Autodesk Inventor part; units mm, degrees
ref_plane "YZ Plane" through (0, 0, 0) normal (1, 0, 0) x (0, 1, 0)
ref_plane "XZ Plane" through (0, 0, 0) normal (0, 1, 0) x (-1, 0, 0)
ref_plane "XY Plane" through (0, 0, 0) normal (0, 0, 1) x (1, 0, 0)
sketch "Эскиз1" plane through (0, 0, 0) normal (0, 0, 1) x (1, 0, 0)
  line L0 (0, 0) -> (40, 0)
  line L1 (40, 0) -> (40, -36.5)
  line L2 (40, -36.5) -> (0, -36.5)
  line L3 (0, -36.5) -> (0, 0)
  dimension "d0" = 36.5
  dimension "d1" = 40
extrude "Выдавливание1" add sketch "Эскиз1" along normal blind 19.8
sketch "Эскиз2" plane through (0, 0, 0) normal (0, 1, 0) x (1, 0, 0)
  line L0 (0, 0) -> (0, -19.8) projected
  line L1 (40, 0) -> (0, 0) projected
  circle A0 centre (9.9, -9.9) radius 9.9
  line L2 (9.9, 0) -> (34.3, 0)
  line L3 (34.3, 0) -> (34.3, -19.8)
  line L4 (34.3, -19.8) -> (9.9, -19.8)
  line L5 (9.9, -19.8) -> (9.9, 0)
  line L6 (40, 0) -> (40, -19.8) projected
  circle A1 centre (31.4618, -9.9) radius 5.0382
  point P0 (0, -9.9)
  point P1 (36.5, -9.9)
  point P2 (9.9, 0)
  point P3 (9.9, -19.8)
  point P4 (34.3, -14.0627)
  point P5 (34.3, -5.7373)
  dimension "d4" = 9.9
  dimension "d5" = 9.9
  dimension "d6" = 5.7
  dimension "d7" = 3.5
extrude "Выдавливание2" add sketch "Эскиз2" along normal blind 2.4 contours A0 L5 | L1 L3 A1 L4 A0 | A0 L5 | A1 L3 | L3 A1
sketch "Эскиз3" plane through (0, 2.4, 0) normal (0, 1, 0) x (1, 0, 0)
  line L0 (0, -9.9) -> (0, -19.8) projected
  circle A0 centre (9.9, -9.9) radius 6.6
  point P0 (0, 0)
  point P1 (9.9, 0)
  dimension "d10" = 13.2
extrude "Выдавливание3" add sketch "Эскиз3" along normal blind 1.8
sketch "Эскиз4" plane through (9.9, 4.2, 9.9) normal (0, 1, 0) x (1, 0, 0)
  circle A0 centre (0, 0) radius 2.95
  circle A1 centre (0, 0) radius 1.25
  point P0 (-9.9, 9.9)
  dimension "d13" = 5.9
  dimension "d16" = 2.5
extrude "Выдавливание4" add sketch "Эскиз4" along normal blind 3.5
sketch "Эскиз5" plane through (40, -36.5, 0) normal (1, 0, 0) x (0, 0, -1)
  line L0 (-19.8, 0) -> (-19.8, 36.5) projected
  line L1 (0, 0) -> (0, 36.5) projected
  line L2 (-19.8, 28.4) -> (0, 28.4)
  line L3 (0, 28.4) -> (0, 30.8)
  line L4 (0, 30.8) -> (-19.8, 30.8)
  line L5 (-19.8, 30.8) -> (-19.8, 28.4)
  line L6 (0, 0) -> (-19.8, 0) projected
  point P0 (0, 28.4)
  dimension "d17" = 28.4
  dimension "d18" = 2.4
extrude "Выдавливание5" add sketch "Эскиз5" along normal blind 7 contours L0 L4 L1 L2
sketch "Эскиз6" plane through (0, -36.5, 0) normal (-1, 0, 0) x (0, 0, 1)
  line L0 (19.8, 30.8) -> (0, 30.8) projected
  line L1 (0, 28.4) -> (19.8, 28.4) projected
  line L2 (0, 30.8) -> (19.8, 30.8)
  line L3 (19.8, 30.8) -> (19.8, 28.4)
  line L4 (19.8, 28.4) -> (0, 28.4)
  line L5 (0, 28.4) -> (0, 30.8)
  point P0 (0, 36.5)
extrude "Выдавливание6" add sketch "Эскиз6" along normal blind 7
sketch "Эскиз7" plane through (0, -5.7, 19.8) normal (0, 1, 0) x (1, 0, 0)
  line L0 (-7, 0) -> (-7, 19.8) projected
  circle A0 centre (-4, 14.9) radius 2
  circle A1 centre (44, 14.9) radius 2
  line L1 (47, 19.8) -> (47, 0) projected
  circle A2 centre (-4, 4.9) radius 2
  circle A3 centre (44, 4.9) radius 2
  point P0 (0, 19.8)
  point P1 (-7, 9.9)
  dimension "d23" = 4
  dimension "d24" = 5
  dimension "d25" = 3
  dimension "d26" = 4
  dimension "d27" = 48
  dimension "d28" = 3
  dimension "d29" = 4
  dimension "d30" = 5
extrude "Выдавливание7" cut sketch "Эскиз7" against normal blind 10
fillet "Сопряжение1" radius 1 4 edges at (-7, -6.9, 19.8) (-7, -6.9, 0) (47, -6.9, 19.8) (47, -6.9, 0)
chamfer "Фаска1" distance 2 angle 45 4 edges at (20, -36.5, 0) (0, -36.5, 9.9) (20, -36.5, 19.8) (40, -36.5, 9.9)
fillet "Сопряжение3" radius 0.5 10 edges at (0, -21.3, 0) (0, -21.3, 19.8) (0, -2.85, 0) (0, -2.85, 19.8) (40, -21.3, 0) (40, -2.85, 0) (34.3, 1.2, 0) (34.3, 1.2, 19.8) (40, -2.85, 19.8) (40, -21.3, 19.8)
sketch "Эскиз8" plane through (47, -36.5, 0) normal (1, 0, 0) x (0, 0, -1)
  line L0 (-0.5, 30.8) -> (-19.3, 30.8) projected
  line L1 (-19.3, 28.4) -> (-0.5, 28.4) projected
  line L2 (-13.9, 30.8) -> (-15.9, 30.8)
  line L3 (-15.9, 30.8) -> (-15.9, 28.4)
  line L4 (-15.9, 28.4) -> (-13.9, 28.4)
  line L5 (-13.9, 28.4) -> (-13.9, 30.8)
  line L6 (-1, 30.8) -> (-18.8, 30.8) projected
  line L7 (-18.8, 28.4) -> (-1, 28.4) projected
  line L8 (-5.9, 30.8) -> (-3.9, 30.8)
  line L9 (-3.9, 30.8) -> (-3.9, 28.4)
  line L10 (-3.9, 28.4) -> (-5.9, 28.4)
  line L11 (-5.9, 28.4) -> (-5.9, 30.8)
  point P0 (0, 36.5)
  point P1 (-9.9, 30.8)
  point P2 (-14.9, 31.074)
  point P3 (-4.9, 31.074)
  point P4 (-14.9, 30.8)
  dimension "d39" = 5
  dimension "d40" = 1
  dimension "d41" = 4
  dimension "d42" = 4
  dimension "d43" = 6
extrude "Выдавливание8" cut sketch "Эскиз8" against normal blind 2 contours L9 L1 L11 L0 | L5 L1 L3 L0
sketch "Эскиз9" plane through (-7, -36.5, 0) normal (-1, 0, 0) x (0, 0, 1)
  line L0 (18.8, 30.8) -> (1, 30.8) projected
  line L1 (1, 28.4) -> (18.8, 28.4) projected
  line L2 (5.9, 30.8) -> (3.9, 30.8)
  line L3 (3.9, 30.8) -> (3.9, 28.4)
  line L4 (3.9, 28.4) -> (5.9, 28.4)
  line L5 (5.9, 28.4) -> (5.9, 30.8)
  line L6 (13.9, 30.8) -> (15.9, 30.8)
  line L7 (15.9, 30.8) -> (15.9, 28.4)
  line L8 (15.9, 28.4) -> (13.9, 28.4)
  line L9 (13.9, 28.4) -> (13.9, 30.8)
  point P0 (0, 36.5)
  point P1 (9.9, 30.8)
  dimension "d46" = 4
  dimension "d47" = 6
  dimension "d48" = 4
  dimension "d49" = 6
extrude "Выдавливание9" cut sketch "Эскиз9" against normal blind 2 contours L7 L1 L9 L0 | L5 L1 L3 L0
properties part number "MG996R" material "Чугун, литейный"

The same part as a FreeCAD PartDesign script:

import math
import FreeCAD as App
import Part
import Sketcher


def edges_at(feature, points):
    """Names of the edges that pass closest to the given points."""
    edges = feature.Shape.Edges
    near = lambda p: min(range(len(edges)), key=lambda i: edges[i].distToShape(Part.Vertex(*p))[0])
    return sorted({f"Edge{near(p) + 1}" for p in points})

doc = App.newDocument("Part")
body = doc.addObject("PartDesign::Body", "Body")

sketch1 = body.newObject("Sketcher::SketchObject", "Sketch")
sketch1.AttachmentSupport = (doc.getObject("XY_Plane"), [""])
sketch1.MapMode = "FlatFace"
sketch1.addGeometry([
    Part.LineSegment(App.Vector(40, 0, 0), App.Vector(0, 0, 0)),
    Part.LineSegment(App.Vector(0, 0, 0), App.Vector(0, -36, 0)),
    Part.LineSegment(App.Vector(0, -36, 0), App.Vector(40, -36, 0)),
    Part.LineSegment(App.Vector(40, -36, 0), App.Vector(40, 0, 0)),
], False)
sketch1.addConstraint([
    Sketcher.Constraint("Coincident", 0, 2, 1, 1),
    Sketcher.Constraint("Coincident", 1, 2, 2, 1),
    Sketcher.Constraint("Coincident", 2, 2, 3, 1),
    Sketcher.Constraint("Coincident", 3, 2, 0, 1),
    Sketcher.Constraint("Horizontal", 0),
    Sketcher.Constraint("Vertical", 1),
    Sketcher.Constraint("Horizontal", 2),
    Sketcher.Constraint("Vertical", 3),
    Sketcher.Constraint("Coincident", 0, 2, -1, 1),
    Sketcher.Constraint("DistanceX", 0, 2, 0, 1, 40.0),
    Sketcher.Constraint("DistanceY", 1, 2, 1, 1, 36.5),
])
pad1 = body.newObject("PartDesign::Pad", "Pad")
pad1.Profile = sketch1
pad1.Length = 19.8

sketch2 = body.newObject("Sketcher::SketchObject", "Sketch001")
sketch2.AttachmentSupport = (doc.getObject("XZ_Plane"), [""])
sketch2.MapMode = "FlatFace"
sketch2.addGeometry([
    Part.ArcOfCircle(Part.Circle(App.Vector(10, 10, 0), App.Vector(0, 0, 1), 10), math.radians(90), math.radians(270)),
    Part.LineSegment(App.Vector(10, 20, 0), App.Vector(34, 20, 0)),
    Part.LineSegment(App.Vector(34, 20, 0), App.Vector(34, 14, 0)),
    Part.ArcOfCircle(Part.Circle(App.Vector(31, 10, 0), App.Vector(0, 0, 1), 5), math.radians(-56), math.radians(56)),
    Part.LineSegment(App.Vector(34, 6, 0), App.Vector(34, 0, 0)),
    Part.LineSegment(App.Vector(34, 0, 0), App.Vector(10, 0, 0)),
], False)
sketch2.addConstraint([
    Sketcher.Constraint("Tangent", 0, 1, 1, 1),
    Sketcher.Constraint("Coincident", 1, 2, 2, 1),
    Sketcher.Constraint("Coincident", 2, 2, 3, 2),
    Sketcher.Constraint("Coincident", 3, 1, 4, 1),
    Sketcher.Constraint("Coincident", 4, 2, 5, 1),
    Sketcher.Constraint("Tangent", 5, 2, 0, 2),
    Sketcher.Constraint("Horizontal", 1),
    Sketcher.Constraint("Vertical", 2),
    Sketcher.Constraint("Vertical", 4),
    Sketcher.Constraint("Horizontal", 5),
    Sketcher.Constraint("PointOnObject", 4, 2, -1),
    Sketcher.Constraint("Horizontal", 0, 3, 3, 3),
    Sketcher.Constraint("Vertical", 2, 2, 3, 1),
    Sketcher.Constraint("Radius", 0, 9.9),
    Sketcher.Constraint("DistanceX", -1, 1, 0, 3, 9.9),
    Sketcher.Constraint("DistanceX", 1, 1, 1, 2, 24.4),
    Sketcher.Constraint("Radius", 3, 5.0382),
    Sketcher.Constraint("DistanceY", 2, 2, 2, 1, 5.7373),
])
pad2 = body.newObject("PartDesign::Pad", "Pad001")
pad2.Profile = sketch2
pad2.Length = 2.4
pad2.Reversed = True

sketch3 = body.newObject("Sketcher::SketchObject", "Sketch002")
sketch3.AttachmentSupport = (doc.getObject("XZ_Plane"), [""])
sketch3.MapMode = "FlatFace"
sketch3.AttachmentOffset = App.Placement(App.Vector(0, 0, -2.4), App.Rotation())
sketch3.addGeometry(Part.Circle(App.Vector(10, 10, 0), App.Vector(0, 0, 1), 7), False)
sketch3.addConstraint([
    Sketcher.Constraint("Diameter", 0, 13.2),
    Sketcher.Constraint("DistanceX", -1, 1, 0, 3, 9.9),
    Sketcher.Constraint("DistanceY", -1, 1, 0, 3, 9.9),
])
pad3 = body.newObject("PartDesign::Pad", "Pad002")
pad3.Profile = sketch3
pad3.Length = 1.8
pad3.Reversed = True

sketch4 = body.newObject("Sketcher::SketchObject", "Sketch003")
sketch4.AttachmentSupport = (doc.getObject("XZ_Plane"), [""])
sketch4.MapMode = "FlatFace"
sketch4.AttachmentOffset = App.Placement(App.Vector(0, 0, -4.2), App.Rotation())
sketch4.addGeometry([
    Part.Circle(App.Vector(9.9, 9.9, 0), App.Vector(0, 0, 1), 3),
    Part.Circle(App.Vector(9.9, 9.9, 0), App.Vector(0, 0, 1), 1.2),
], False)
sketch4.addConstraint([
    Sketcher.Constraint("Coincident", 1, 3, 0, 3),
    Sketcher.Constraint("Diameter", 0, 5.9),
    Sketcher.Constraint("Diameter", 1, 2.5),
    Sketcher.Constraint("DistanceX", -1, 1, 0, 3, 9.9),
    Sketcher.Constraint("DistanceY", -1, 1, 0, 3, 9.9),
])
pad4 = body.newObject("PartDesign::Pad", "Pad003")
pad4.Profile = sketch4
pad4.Length = 3.5
pad4.Reversed = True

sketch5 = body.newObject("Sketcher::SketchObject", "Sketch004")
sketch5.AttachmentSupport = (doc.getObject("YZ_Plane"), [""])
sketch5.MapMode = "FlatFace"
sketch5.AttachmentOffset = App.Placement(App.Vector(0, 0, 40), App.Rotation())
sketch5.addGeometry([
    Part.LineSegment(App.Vector(-5.7, 19.8, 0), App.Vector(-8.1, 19.8, 0)),
    Part.LineSegment(App.Vector(-8.1, 19.8, 0), App.Vector(-8.1, 0, 0)),
    Part.LineSegment(App.Vector(-8.1, 0, 0), App.Vector(-5.7, 0, 0)),
    Part.LineSegment(App.Vector(-5.7, 0, 0), App.Vector(-5.7, 19.8, 0)),
], False)
sketch5.addConstraint([
    Sketcher.Constraint("Coincident", 0, 2, 1, 1),
    Sketcher.Constraint("Coincident", 1, 2, 2, 1),
    Sketcher.Constraint("Coincident", 2, 2, 3, 1),
    Sketcher.Constraint("Coincident", 3, 2, 0, 1),
    Sketcher.Constraint("Horizontal", 0),
    Sketcher.Constraint("Vertical", 1),
    Sketcher.Constraint("Horizontal", 2),
    Sketcher.Constraint("Vertical", 3),
    Sketcher.Constraint("PointOnObject", 1, 2, -1),
    Sketcher.Constraint("DistanceX", 0, 2, 0, 1, 2.4),
    Sketcher.Constraint("DistanceY", 1, 2, 1, 1, 19.8),
    Sketcher.Constraint("DistanceX", 0, 2, -1, 1, 8.1),
])
pad5 = body.newObject("PartDesign::Pad", "Pad004")
pad5.Profile = sketch5
pad5.Length = 7

sketch6 = body.newObject("Sketcher::SketchObject", "Sketch005")
sketch6.AttachmentSupport = (doc.getObject("YZ_Plane"), [""])
sketch6.MapMode = "FlatFace"
sketch6.addGeometry([
    Part.LineSegment(App.Vector(-8.1, 19.8, 0), App.Vector(-5.7, 19.8, 0)),
    Part.LineSegment(App.Vector(-5.7, 19.8, 0), App.Vector(-5.7, 0, 0)),
    Part.LineSegment(App.Vector(-5.7, 0, 0), App.Vector(-8.1, 0, 0)),
    Part.LineSegment(App.Vector(-8.1, 0, 0), App.Vector(-8.1, 19.8, 0)),
], False)
sketch6.addConstraint([
    Sketcher.Constraint("Coincident", 0, 2, 1, 1),
    Sketcher.Constraint("Coincident", 1, 2, 2, 1),
    Sketcher.Constraint("Coincident", 2, 2, 3, 1),
    Sketcher.Constraint("Coincident", 3, 2, 0, 1),
    Sketcher.Constraint("Horizontal", 0),
    Sketcher.Constraint("Vertical", 1),
    Sketcher.Constraint("Horizontal", 2),
    Sketcher.Constraint("Vertical", 3),
    Sketcher.Constraint("PointOnObject", 1, 2, -1),
    Sketcher.Constraint("DistanceX", 0, 1, 0, 2, 2.4),
    Sketcher.Constraint("DistanceY", 1, 2, 1, 1, 19.8),
    Sketcher.Constraint("DistanceX", 0, 2, -1, 1, 5.7),
])
pad6 = body.newObject("PartDesign::Pad", "Pad005")
pad6.Profile = sketch6
pad6.Length = 7
pad6.Reversed = True

sketch7 = body.newObject("Sketcher::SketchObject", "Sketch006")
sketch7.AttachmentSupport = (doc.getObject("XZ_Plane"), [""])
sketch7.MapMode = "FlatFace"
sketch7.AttachmentOffset = App.Placement(App.Vector(0, 0, 5.7), App.Rotation())
sketch7.addGeometry([
    Part.Circle(App.Vector(-4, 4.9, 0), App.Vector(0, 0, 1), 2),
    Part.Circle(App.Vector(44, 4.9, 0), App.Vector(0, 0, 1), 2),
    Part.Circle(App.Vector(-4, 14.9, 0), App.Vector(0, 0, 1), 2),
    Part.Circle(App.Vector(44, 14.9, 0), App.Vector(0, 0, 1), 2),
], False)
sketch7.addConstraint([
    Sketcher.Constraint("Equal", 0, 1),
    Sketcher.Constraint("Equal", 1, 2),
    Sketcher.Constraint("Equal", 2, 3),
    Sketcher.Constraint("Horizontal", 0, 3, 1, 3),
    Sketcher.Constraint("Horizontal", 2, 3, 3, 3),
    Sketcher.Constraint("Vertical", 0, 3, 2, 3),
    Sketcher.Constraint("Vertical", 1, 3, 3, 3),
    Sketcher.Constraint("Diameter", 0, 4.0),
    Sketcher.Constraint("DistanceX", 0, 3, -1, 1, 4.0),
    Sketcher.Constraint("DistanceX", 0, 3, 1, 3, 48.0),
    Sketcher.Constraint("DistanceY", 0, 3, 2, 3, 10.0),
    Sketcher.Constraint("DistanceY", -1, 1, 0, 3, 4.9),
])
pocket1 = body.newObject("PartDesign::Pocket", "Pocket")
pocket1.Profile = sketch7
pocket1.Length = 10
pocket1.Reversed = True
doc.recompute()

fillet = body.newObject("PartDesign::Fillet", "Fillet")
fillet.Base = (pocket1, edges_at(pocket1, [
    (-7, -6.9, 19.8),
    (-7, -6.9, 0),
    (47, -6.9, 19.8),
    (47, -6.9, 0),
]))
fillet.Radius = 1
doc.recompute()

chamfer = body.newObject("PartDesign::Chamfer", "Chamfer")
chamfer.Base = (fillet, edges_at(fillet, [
    (20, -36.5, 0),
    (0, -36.5, 9.9),
    (20, -36.5, 19.8),
    (40, -36.5, 9.9),
]))
chamfer.Size = 2
doc.recompute()

fillet2 = body.newObject("PartDesign::Fillet", "Fillet001")
fillet2.Base = (chamfer, edges_at(chamfer, [
    (0, -21.3, 0),
    (0, -21.3, 19.8),
    (0, -2.85, 0),
    (0, -2.85, 19.8),
    (40, -21.3, 0),
    (40, -2.85, 0),
    (34.3, 1.2, 0),
    (34.3, 1.2, 19.8),
    (40, -2.85, 19.8),
    (40, -21.3, 19.8),
]))
fillet2.Radius = 0.5

sketch8 = body.newObject("Sketcher::SketchObject", "Sketch007")
sketch8.AttachmentSupport = (doc.getObject("YZ_Plane"), [""])
sketch8.MapMode = "FlatFace"
sketch8.AttachmentOffset = App.Placement(App.Vector(0, 0, 47), App.Rotation())
sketch8.addGeometry([
    Part.LineSegment(App.Vector(-8.1, 3.9, 0), App.Vector(-5.7, 3.9, 0)),
    Part.LineSegment(App.Vector(-5.7, 3.9, 0), App.Vector(-5.7, 5.9, 0)),
    Part.LineSegment(App.Vector(-5.7, 5.9, 0), App.Vector(-8.1, 5.9, 0)),
    Part.LineSegment(App.Vector(-8.1, 5.9, 0), App.Vector(-8.1, 3.9, 0)),
    Part.LineSegment(App.Vector(-8.1, 13.9, 0), App.Vector(-5.7, 13.9, 0)),
    Part.LineSegment(App.Vector(-5.7, 13.9, 0), App.Vector(-5.7, 15.9, 0)),
    Part.LineSegment(App.Vector(-5.7, 15.9, 0), App.Vector(-8.1, 15.9, 0)),
    Part.LineSegment(App.Vector(-8.1, 15.9, 0), App.Vector(-8.1, 13.9, 0)),
], False)
sketch8.addConstraint([
    Sketcher.Constraint("Coincident", 0, 2, 1, 1),
    Sketcher.Constraint("Coincident", 1, 2, 2, 1),
    Sketcher.Constraint("Coincident", 2, 2, 3, 1),
    Sketcher.Constraint("Coincident", 3, 2, 0, 1),
    Sketcher.Constraint("Coincident", 4, 2, 5, 1),
    Sketcher.Constraint("Coincident", 5, 2, 6, 1),
    Sketcher.Constraint("Coincident", 6, 2, 7, 1),
    Sketcher.Constraint("Coincident", 7, 2, 4, 1),
    Sketcher.Constraint("Horizontal", 0),
    Sketcher.Constraint("Vertical", 1),
    Sketcher.Constraint("Horizontal", 2),
    Sketcher.Constraint("Vertical", 3),
    Sketcher.Constraint("Horizontal", 4),
    Sketcher.Constraint("Vertical", 5),
    Sketcher.Constraint("Horizontal", 6),
    Sketcher.Constraint("Vertical", 7),
    Sketcher.Constraint("Vertical", 1, 2, 4, 2),
    Sketcher.Constraint("Vertical", 3, 2, 6, 2),
    Sketcher.Constraint("Equal", 3, 5),
    Sketcher.Constraint("DistanceY", 1, 1, 1, 2, 2.0),
    Sketcher.Constraint("DistanceX", 0, 1, 0, 2, 2.4),
    Sketcher.Constraint("DistanceY", 1, 2, 4, 2, 8.0),
    Sketcher.Constraint("DistanceX", 0, 2, -1, 1, 5.7),
    Sketcher.Constraint("DistanceY", -1, 1, 0, 2, 3.9),
])
pocket2 = body.newObject("PartDesign::Pocket", "Pocket001")
pocket2.Profile = sketch8
pocket2.Length = 2

sketch9 = body.newObject("Sketcher::SketchObject", "Sketch008")
sketch9.AttachmentSupport = (doc.getObject("YZ_Plane"), [""])
sketch9.MapMode = "FlatFace"
sketch9.AttachmentOffset = App.Placement(App.Vector(0, 0, -7), App.Rotation())
sketch9.addGeometry([
    Part.LineSegment(App.Vector(-8.1, 15.9, 0), App.Vector(-5.7, 15.9, 0)),
    Part.LineSegment(App.Vector(-5.7, 15.9, 0), App.Vector(-5.7, 13.9, 0)),
    Part.LineSegment(App.Vector(-5.7, 13.9, 0), App.Vector(-8.1, 13.9, 0)),
    Part.LineSegment(App.Vector(-8.1, 13.9, 0), App.Vector(-8.1, 15.9, 0)),
    Part.LineSegment(App.Vector(-8.1, 5.9, 0), App.Vector(-5.7, 5.9, 0)),
    Part.LineSegment(App.Vector(-5.7, 5.9, 0), App.Vector(-5.7, 3.9, 0)),
    Part.LineSegment(App.Vector(-5.7, 3.9, 0), App.Vector(-8.1, 3.9, 0)),
    Part.LineSegment(App.Vector(-8.1, 3.9, 0), App.Vector(-8.1, 5.9, 0)),
], False)
sketch9.addConstraint([
    Sketcher.Constraint("Coincident", 0, 2, 1, 1),
    Sketcher.Constraint("Coincident", 1, 2, 2, 1),
    Sketcher.Constraint("Coincident", 2, 2, 3, 1),
    Sketcher.Constraint("Coincident", 3, 2, 0, 1),
    Sketcher.Constraint("Coincident", 4, 2, 5, 1),
    Sketcher.Constraint("Coincident", 5, 2, 6, 1),
    Sketcher.Constraint("Coincident", 6, 2, 7, 1),
    Sketcher.Constraint("Coincident", 7, 2, 4, 1),
    Sketcher.Constraint("Horizontal", 0),
    Sketcher.Constraint("Vertical", 1),
    Sketcher.Constraint("Horizontal", 2),
    Sketcher.Constraint("Vertical", 3),
    Sketcher.Constraint("Horizontal", 4),
    Sketcher.Constraint("Vertical", 5),
    Sketcher.Constraint("Horizontal", 6),
    Sketcher.Constraint("Vertical", 7),
    Sketcher.Constraint("Vertical", 1, 2, 4, 2),
    Sketcher.Constraint("Vertical", 3, 2, 6, 2),
    Sketcher.Constraint("Equal", 3, 5),
    Sketcher.Constraint("DistanceY", 1, 2, 1, 1, 2.0),
    Sketcher.Constraint("DistanceX", 0, 1, 0, 2, 2.4),
    Sketcher.Constraint("DistanceY", 4, 2, 1, 2, 8.0),
    Sketcher.Constraint("DistanceX", 0, 2, -1, 1, 5.7),
    Sketcher.Constraint("DistanceY", -1, 1, 0, 2, 15.9),
])
pocket3 = body.newObject("PartDesign::Pocket", "Pocket002")
pocket3.Profile = sketch9
pocket3.Length = 2
pocket3.Reversed = True

doc.recompute()
